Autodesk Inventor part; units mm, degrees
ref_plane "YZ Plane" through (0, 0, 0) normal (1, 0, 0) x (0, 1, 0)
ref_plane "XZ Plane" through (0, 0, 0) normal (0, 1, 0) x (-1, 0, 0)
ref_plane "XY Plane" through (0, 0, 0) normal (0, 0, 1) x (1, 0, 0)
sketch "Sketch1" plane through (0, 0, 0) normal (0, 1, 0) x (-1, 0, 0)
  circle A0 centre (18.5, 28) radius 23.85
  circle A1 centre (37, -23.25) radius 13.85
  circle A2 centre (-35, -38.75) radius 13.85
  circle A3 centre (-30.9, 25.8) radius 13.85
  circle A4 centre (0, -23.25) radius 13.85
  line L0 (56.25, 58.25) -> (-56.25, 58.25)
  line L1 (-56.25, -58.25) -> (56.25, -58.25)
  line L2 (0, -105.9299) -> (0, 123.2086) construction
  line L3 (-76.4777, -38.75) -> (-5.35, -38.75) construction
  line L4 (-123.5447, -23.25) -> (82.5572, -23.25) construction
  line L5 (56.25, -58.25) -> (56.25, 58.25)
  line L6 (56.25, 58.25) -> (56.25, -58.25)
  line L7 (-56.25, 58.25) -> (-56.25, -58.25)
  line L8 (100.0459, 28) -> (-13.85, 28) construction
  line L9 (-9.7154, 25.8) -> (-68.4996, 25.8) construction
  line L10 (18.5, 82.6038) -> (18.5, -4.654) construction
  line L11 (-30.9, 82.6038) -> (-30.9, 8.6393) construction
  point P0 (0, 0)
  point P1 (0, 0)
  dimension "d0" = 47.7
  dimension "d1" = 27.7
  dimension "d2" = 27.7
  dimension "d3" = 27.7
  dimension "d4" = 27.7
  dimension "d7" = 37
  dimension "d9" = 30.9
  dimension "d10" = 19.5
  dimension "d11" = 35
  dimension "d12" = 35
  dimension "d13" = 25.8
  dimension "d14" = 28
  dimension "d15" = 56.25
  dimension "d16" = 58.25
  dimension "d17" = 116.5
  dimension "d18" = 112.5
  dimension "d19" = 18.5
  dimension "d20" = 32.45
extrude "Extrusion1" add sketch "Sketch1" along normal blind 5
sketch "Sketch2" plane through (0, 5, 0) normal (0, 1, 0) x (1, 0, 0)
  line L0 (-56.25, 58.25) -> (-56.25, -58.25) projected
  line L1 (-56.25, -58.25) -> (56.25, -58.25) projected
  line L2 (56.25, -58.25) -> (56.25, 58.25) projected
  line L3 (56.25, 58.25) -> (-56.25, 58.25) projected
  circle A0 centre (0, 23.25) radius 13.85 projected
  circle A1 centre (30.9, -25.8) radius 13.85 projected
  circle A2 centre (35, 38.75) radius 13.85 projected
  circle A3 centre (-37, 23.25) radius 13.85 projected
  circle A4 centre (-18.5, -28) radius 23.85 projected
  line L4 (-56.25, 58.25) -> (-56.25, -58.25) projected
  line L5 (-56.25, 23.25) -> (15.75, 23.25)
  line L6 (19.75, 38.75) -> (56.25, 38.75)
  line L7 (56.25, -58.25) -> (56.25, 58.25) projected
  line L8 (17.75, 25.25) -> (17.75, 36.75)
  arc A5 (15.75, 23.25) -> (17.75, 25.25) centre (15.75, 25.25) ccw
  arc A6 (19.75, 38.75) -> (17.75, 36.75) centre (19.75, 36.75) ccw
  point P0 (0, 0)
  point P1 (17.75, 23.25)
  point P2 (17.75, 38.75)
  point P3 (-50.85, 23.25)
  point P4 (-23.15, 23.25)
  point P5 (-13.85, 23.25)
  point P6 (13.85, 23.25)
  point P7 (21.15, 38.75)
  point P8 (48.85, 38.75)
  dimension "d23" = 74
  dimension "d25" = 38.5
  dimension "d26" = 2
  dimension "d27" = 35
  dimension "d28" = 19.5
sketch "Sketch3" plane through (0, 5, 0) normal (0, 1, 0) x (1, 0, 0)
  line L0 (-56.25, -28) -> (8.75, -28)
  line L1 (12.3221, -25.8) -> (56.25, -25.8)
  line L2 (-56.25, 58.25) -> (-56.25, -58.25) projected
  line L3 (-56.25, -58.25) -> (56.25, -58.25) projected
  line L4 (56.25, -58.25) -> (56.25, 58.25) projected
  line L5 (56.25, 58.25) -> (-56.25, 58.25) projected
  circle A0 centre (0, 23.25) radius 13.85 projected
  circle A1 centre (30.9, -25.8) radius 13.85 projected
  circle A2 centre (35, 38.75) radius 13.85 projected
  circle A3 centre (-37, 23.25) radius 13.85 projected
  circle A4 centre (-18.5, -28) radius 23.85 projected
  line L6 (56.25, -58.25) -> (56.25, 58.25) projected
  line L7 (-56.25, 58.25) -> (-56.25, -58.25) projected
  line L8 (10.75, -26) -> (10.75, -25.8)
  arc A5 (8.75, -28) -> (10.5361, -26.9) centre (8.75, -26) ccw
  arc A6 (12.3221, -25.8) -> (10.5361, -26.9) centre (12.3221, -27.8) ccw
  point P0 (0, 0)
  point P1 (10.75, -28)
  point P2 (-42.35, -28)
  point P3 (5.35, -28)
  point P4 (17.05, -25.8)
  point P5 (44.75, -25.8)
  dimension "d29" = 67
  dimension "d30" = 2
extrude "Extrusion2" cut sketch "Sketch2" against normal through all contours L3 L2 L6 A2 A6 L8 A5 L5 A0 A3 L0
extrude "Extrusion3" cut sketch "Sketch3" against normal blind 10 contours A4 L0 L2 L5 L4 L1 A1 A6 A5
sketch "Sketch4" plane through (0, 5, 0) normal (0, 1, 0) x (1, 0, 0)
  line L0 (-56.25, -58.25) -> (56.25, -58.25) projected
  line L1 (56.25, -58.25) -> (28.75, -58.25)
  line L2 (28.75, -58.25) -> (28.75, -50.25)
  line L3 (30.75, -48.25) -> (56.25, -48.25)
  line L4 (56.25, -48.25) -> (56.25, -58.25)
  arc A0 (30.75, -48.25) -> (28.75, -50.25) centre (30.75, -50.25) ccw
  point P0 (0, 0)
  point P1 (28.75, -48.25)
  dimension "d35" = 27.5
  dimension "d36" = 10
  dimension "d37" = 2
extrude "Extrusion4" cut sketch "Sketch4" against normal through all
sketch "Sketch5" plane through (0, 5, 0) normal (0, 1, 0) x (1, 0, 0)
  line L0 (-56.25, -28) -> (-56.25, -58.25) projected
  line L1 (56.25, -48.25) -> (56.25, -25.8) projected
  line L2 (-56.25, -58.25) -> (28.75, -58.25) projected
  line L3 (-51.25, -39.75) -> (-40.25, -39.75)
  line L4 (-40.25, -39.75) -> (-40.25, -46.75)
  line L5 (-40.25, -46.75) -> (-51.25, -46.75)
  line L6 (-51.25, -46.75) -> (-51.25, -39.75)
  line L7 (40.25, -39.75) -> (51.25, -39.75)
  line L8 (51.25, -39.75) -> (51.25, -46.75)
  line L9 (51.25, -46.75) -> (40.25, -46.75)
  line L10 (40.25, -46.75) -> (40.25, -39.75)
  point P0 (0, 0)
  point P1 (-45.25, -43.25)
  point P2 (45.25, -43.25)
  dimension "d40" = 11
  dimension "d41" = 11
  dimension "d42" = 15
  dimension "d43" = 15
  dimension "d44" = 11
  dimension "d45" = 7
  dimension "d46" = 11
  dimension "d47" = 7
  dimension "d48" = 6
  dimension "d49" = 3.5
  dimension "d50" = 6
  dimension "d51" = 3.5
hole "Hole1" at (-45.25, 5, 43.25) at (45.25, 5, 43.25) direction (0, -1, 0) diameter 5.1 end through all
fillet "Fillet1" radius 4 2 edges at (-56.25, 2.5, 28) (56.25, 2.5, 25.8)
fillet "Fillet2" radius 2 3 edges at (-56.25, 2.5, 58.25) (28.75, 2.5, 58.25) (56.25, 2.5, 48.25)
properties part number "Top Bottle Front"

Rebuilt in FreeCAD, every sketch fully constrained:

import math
import FreeCAD as App
import Part
import Sketcher

V = App.Vector
Q = App.Units.Quantity


def edges_at(feature, points):
    """Names of the edges that pass closest to the given points."""
    edges = feature.Shape.Edges
    near = lambda p: min(range(len(edges)), key=lambda i: edges[i].distToShape(Part.Vertex(*p))[0])
    return sorted({f"Edge{near(p) + 1}" for p in points})


def add_polygon(sketch, points):
    """Adds a closed chain of lines whose ends are joined by coincident constraints."""
    first, n = sketch.GeometryCount, len(points)
    for a, b in zip(points, points[1:] + points[:1]):
        sketch.addGeometry(Part.LineSegment(App.Vector(*a, 0), App.Vector(*b, 0)), False)
    for i in range(n):
        sketch.addConstraint(Sketcher.Constraint("Coincident", first + i, 2, first + (i + 1) % n, 1))

doc = App.newDocument("Part")
body = doc.addObject("PartDesign::Body", "Body")

sketch1 = body.newObject("Sketcher::SketchObject", "Sketch")
sketch1.AttachmentSupport = (doc.getObject("XZ_Plane"), [""])
sketch1.MapMode = "FlatFace"
add_polygon(sketch1, [(-56, -58), (-56, 58), (56, 58), (56, -58)])
sketch1.addGeometry(Part.Circle(V(35, -39, 0), V(0, 0, 1), 14), False)
sketch1.addGeometry(Part.Circle(V(0, -23, 0), V(0, 0, 1), 14), False)
sketch1.addGeometry(Part.Circle(V(-37, -23, 0), V(0, 0, 1), 14), False)
sketch1.addGeometry(Part.Circle(V(31, 26, 0), V(0, 0, 1), 14), False)
sketch1.addGeometry(Part.Circle(V(-18, 28, 0), V(0, 0, 1), 24), False)
sketch1.addConstraint([
    Sketcher.Constraint("Vertical", 0),
    Sketcher.Constraint("Horizontal", 1),
    Sketcher.Constraint("Vertical", 2),
    Sketcher.Constraint("Horizontal", 3),
    Sketcher.Constraint("Equal", 4, 5),
    Sketcher.Constraint("Equal", 5, 6),
    Sketcher.Constraint("Equal", 6, 7),
    Sketcher.Constraint("Symmetric", 0, 2, 2, 2, -1, 1),
    Sketcher.Constraint("PointOnObject", 5, 3, -2),
    Sketcher.Constraint("Horizontal", 5, 3, 6, 3),
    Sketcher.Constraint("Diameter", 4, Q("27.7 mm")),
    Sketcher.Constraint("Diameter", 8, Q("47.7 mm")),
    Sketcher.Constraint("DistanceX", 1, 1, 1, 2, Q("112.5 mm")),
    Sketcher.Constraint("DistanceY", 0, 1, 0, 2, Q("116.5 mm")),
    Sketcher.Constraint("DistanceX", -1, 1, 4, 3, Q("35 mm")),
    Sketcher.Constraint("DistanceX", 6, 3, -1, 1, Q("37 mm")),
    Sketcher.Constraint("DistanceY", -1, 1, 8, 3, Q("28 mm")),
    Sketcher.Constraint("DistanceY", 2, 2, 5, 3, Q("35 mm")),
    Sketcher.Constraint("DistanceX", -1, 1, 7, 3, Q("30.9 mm")),
    Sketcher.Constraint("DistanceY", -1, 1, 7, 3, Q("25.8 mm")),
    Sketcher.Constraint("DistanceX", 8, 3, -1, 1, Q("18.5 mm")),
    Sketcher.Constraint("DistanceY", 2, 2, 4, 3, Q("19.5 mm")),
])
pad1 = body.newObject("PartDesign::Pad", "Pad")
pad1.Profile = sketch1
pad1.Length = 5
pad1.Reversed = True

sketch2 = body.newObject("Sketcher::SketchObject", "Sketch001")
sketch2.AttachmentSupport = (doc.getObject("XZ_Plane"), [""])
sketch2.MapMode = "FlatFace"
sketch2.AttachmentOffset = App.Placement(V(0, 0, -5), App.Rotation())
sketch2.addGeometry([
    Part.LineSegment(V(56.2, -58.2, 0), V(-56.2, -58.2, 0)),
    Part.LineSegment(V(-56.2, -58.2, 0), V(-56.2, -23.2, 0)),
    Part.LineSegment(V(-56.2, -23.2, 0), V(-50.9, -23.2, 0)),
    Part.ArcOfCircle(Part.Circle(V(-37, -23.2, 0), V(0, 0, 1), 13.8), math.radians(180), math.radians(360)),
    Part.LineSegment(V(-23.1, -23.2, 0), V(-13.8, -23.2, 0)),
    Part.ArcOfCircle(Part.Circle(V(0, -23.2, 0), V(0, 0, 1), 13.8), math.radians(180), math.radians(360)),
    Part.LineSegment(V(13.8, -23.2, 0), V(15.8, -23.2, 0)),
    Part.ArcOfCircle(Part.Circle(V(15.8, -25.2, 0), V(0, 0, 1), 2), math.radians(0), math.radians(90)),
    Part.LineSegment(V(17.8, -25.2, 0), V(17.8, -36.8, 0)),
    Part.ArcOfCircle(Part.Circle(V(19.8, -36.8, 0), V(0, 0, 1), 2), math.radians(180), math.radians(270)),
    Part.LineSegment(V(19.8, -38.8, 0), V(21.1, -38.8, 0)),
    Part.ArcOfCircle(Part.Circle(V(35, -38.8, 0), V(0, 0, 1), 13.8), math.radians(180), math.radians(360)),
    Part.LineSegment(V(48.9, -38.8, 0), V(56.2, -38.8, 0)),
    Part.LineSegment(V(56.2, -38.8, 0), V(56.2, -58.2, 0)),
], False)
sketch2.addConstraint([
    Sketcher.Constraint("Coincident", 0, 2, 1, 1),
    Sketcher.Constraint("Coincident", 1, 2, 2, 1),
    Sketcher.Constraint("Coincident", 2, 2, 3, 1),
    Sketcher.Constraint("Coincident", 3, 2, 4, 1),
    Sketcher.Constraint("Coincident", 4, 2, 5, 1),
    Sketcher.Constraint("Coincident", 5, 2, 6, 1),
    Sketcher.Constraint("Tangent", 6, 2, 7, 2),
    Sketcher.Constraint("Tangent", 7, 1, 8, 1),
    Sketcher.Constraint("Tangent", 8, 2, 9, 1),
    Sketcher.Constraint("Tangent", 9, 2, 10, 1),
    Sketcher.Constraint("Coincident", 10, 2, 11, 1),
    Sketcher.Constraint("Coincident", 11, 2, 12, 1),
    Sketcher.Constraint("Coincident", 12, 2, 13, 1),
    Sketcher.Constraint("Coincident", 13, 2, 0, 1),
    Sketcher.Constraint("Horizontal", 0),
    Sketcher.Constraint("Vertical", 1),
    Sketcher.Constraint("Horizontal", 2),
    Sketcher.Constraint("Horizontal", 4),
    Sketcher.Constraint("Horizontal", 6),
    Sketcher.Constraint("Vertical", 8),
    Sketcher.Constraint("Horizontal", 10),
    Sketcher.Constraint("Horizontal", 12),
    Sketcher.Constraint("Vertical", 13),
    Sketcher.Constraint("Equal", 3, 5),
    Sketcher.Constraint("Equal", 7, 9),
    Sketcher.Constraint("Equal", 5, 11),
    Sketcher.Constraint("Symmetric", 4, 2, 5, 2, -2),
    Sketcher.Constraint("Horizontal", 3, 3, 5, 3),
    Sketcher.Constraint("Horizontal", 5, 3, 1, 2),
    Sketcher.Constraint("Horizontal", 2, 2, 3, 2),
    Sketcher.Constraint("Horizontal", 11, 3, 9, 2),
    Sketcher.Constraint("Horizontal", 10, 2, 11, 2),
    Sketcher.Constraint("Radius", 7, Q("2 mm")),
    Sketcher.Constraint("DistanceY", 1, 1, 1, 2, Q("35 mm")),
    Sketcher.Constraint("DistanceY", 13, 2, 13, 1, Q("19.5 mm")),
    Sketcher.Constraint("DistanceX", -1, 1, 11, 3, Q("35 mm")),
    Sketcher.Constraint("Radius", 3, Q("13.85 mm")),
    Sketcher.Constraint("DistanceX", 0, 2, 0, 1, Q("112.5 mm")),
    Sketcher.Constraint("DistanceX", 2, 1, 2, 2, Q("5.4 mm")),
    Sketcher.Constraint("DistanceX", 4, 1, 4, 2, Q("9.3 mm")),
    Sketcher.Constraint("DistanceX", 6, 1, 6, 2, Q("1.9 mm")),
    Sketcher.Constraint("DistanceY", 3, 3, -1, 1, Q("23.25 mm")),
])
pocket1 = body.newObject("PartDesign::Pocket", "Pocket")
pocket1.Profile = sketch2
pocket1.Type = "ThroughAll"
pocket1.Reversed = True

sketch3 = body.newObject("Sketcher::SketchObject", "Sketch002")
sketch3.AttachmentSupport = (doc.getObject("XZ_Plane"), [""])
sketch3.MapMode = "FlatFace"
sketch3.AttachmentOffset = App.Placement(V(0, 0, -5), App.Rotation())
sketch3.addGeometry([
    Part.ArcOfCircle(Part.Circle(V(-18.5, 28, 0), V(0, 0, 1), 23.9), math.radians(180), math.radians(360)),
    Part.LineSegment(V(5.3, 28, 0), V(8.8, 28, 0)),
    Part.ArcOfCircle(Part.Circle(V(8.8, 26, 0), V(0, 0, 1), 2), math.radians(27), math.radians(90)),
    Part.ArcOfCircle(Part.Circle(V(12.3, 27.8, 0), V(0, 0, 1), 2), math.radians(-153), math.radians(-90)),
    Part.LineSegment(V(12.3, 25.8, 0), V(17.1, 25.8, 0)),
    Part.ArcOfCircle(Part.Circle(V(30.9, 25.8, 0), V(0, 0, 1), 13.8), math.radians(180), math.radians(360)),
    Part.LineSegment(V(44.8, 25.8, 0), V(56.2, 25.8, 0)),
    Part.LineSegment(V(56.2, 25.8, 0), V(56.2, -58.2, 0)),
    Part.LineSegment(V(56.2, -58.2, 0), V(-56.2, -58.2, 0)),
    Part.LineSegment(V(-56.2, -58.2, 0), V(-56.2, 28, 0)),
    Part.LineSegment(V(-56.2, 28, 0), V(-42.4, 28, 0)),
    Part.Circle(V(-37, -23.2, 0), V(0, 0, 1), 13.8),
    Part.Circle(V(0, -23.2, 0), V(0, 0, 1), 13.8),
    Part.Circle(V(35, -38.8, 0), V(0, 0, 1), 13.8),
], False)
sketch3.addConstraint([
    Sketcher.Constraint("Coincident", 0, 2, 1, 1),
    Sketcher.Constraint("Tangent", 1, 2, 2, 2),
    Sketcher.Constraint("Tangent", 2, 1, 3, 1),
    Sketcher.Constraint("Tangent", 3, 2, 4, 1),
    Sketcher.Constraint("Coincident", 4, 2, 5, 1),
    Sketcher.Constraint("Coincident", 5, 2, 6, 1),
    Sketcher.Constraint("Coincident", 6, 2, 7, 1),
    Sketcher.Constraint("Coincident", 7, 2, 8, 1),
    Sketcher.Constraint("Coincident", 8, 2, 9, 1),
    Sketcher.Constraint("Coincident", 9, 2, 10, 1),
    Sketcher.Constraint("Coincident", 10, 2, 0, 1),
    Sketcher.Constraint("Horizontal", 1),
    Sketcher.Constraint("Horizontal", 4),
    Sketcher.Constraint("Horizontal", 6),
    Sketcher.Constraint("Vertical", 7),
    Sketcher.Constraint("Horizontal", 8),
    Sketcher.Constraint("Vertical", 9),
    Sketcher.Constraint("Horizontal", 10),
    Sketcher.Constraint("Equal", 2, 3),
    Sketcher.Constraint("Equal", 5, 11),
    Sketcher.Constraint("Equal", 11, 12),
    Sketcher.Constraint("Equal", 12, 13),
    Sketcher.Constraint("PointOnObject", 12, 3, -2),
    Sketcher.Constraint("Horizontal", 11, 3, 12, 3),
    Sketcher.Constraint("Horizontal", 5, 3, 3, 2),
    Sketcher.Constraint("Horizontal", 4, 2, 5, 2),
    Sketcher.Constraint("Horizontal", 1, 2, 9, 2),
    Sketcher.Constraint("Radius", 2, Q("2 mm")),
    Sketcher.Constraint("DistanceY", 2, 3, 0, 3, Q("2 mm")),
    Sketcher.Constraint("Diameter", 11, Q("27.7 mm")),
    Sketcher.Constraint("Radius", 0, Q("23.85 mm")),
    Sketcher.Constraint("DistanceX", 1, 1, 1, 2, Q("3.4 mm")),
    Sketcher.Constraint("DistanceX", 6, 1, 6, 2, Q("11.5 mm")),
    Sketcher.Constraint("DistanceX", 8, 2, 8, 1, Q("112.5 mm")),
    Sketcher.Constraint("DistanceX", 10, 1, 10, 2, Q("13.9 mm")),
    Sketcher.Constraint("DistanceY", -1, 1, 0, 3, Q("28 mm")),
    Sketcher.Constraint("DistanceX", 11, 3, -1, 1, Q("37 mm")),
    Sketcher.Constraint("DistanceX", -1, 1, 13, 3, Q("35 mm")),
    Sketcher.Constraint("DistanceY", 7, 2, 12, 3, Q("35 mm")),
    Sketcher.Constraint("DistanceY", 7, 2, 7, 1, Q("84.05 mm")),
    Sketcher.Constraint("DistanceY", 9, 1, 9, 2, Q("86.25 mm")),
    Sketcher.Constraint("DistanceX", 0, 3, -1, 1, Q("18.5 mm")),
    Sketcher.Constraint("DistanceY", 13, 3, 12, 3, Q("15.5 mm")),
])
pocket2 = body.newObject("PartDesign::Pocket", "Pocket001")
pocket2.Profile = sketch3
pocket2.Length = 10
pocket2.Reversed = True

sketch4 = body.newObject("Sketcher::SketchObject", "Sketch003")
sketch4.AttachmentSupport = (doc.getObject("XZ_Plane"), [""])
sketch4.MapMode = "FlatFace"
sketch4.AttachmentOffset = App.Placement(V(0, 0, -5), App.Rotation())
sketch4.addGeometry([
    Part.LineSegment(V(28.8, 50.2, 0), V(28.8, 58.2, 0)),
    Part.LineSegment(V(28.8, 58.2, 0), V(56.2, 58.2, 0)),
    Part.LineSegment(V(56.2, 58.2, 0), V(56.2, 48.2, 0)),
    Part.LineSegment(V(56.2, 48.2, 0), V(30.8, 48.2, 0)),
    Part.ArcOfCircle(Part.Circle(V(30.8, 50.2, 0), V(0, 0, 1), 2), math.radians(180), math.radians(270)),
], False)
sketch4.addConstraint([
    Sketcher.Constraint("Coincident", 0, 2, 1, 1),
    Sketcher.Constraint("Coincident", 1, 2, 2, 1),
    Sketcher.Constraint("Coincident", 2, 2, 3, 1),
    Sketcher.Constraint("Tangent", 3, 2, 4, 2),
    Sketcher.Constraint("Tangent", 4, 1, 0, 1),
    Sketcher.Constraint("Vertical", 0),
    Sketcher.Constraint("Horizontal", 1),
    Sketcher.Constraint("Vertical", 2),
    Sketcher.Constraint("Horizontal", 3),
    Sketcher.Constraint("Radius", 4, Q("2 mm")),
    Sketcher.Constraint("DistanceY", 2, 2, 2, 1, Q("10 mm")),
    Sketcher.Constraint("DistanceX", 1, 1, 1, 2, Q("27.5 mm")),
    Sketcher.Constraint("DistanceX", -1, 1, 4, 3, Q("30.75 mm")),
    Sketcher.Constraint("DistanceY", -1, 1, 4, 3, Q("50.25 mm")),
])
pocket3 = body.newObject("PartDesign::Pocket", "Pocket002")
pocket3.Profile = sketch4
pocket3.Type = "ThroughAll"
pocket3.Reversed = True

sketch5 = body.newObject("Sketcher::SketchObject", "Sketch004")
sketch5.AttachmentSupport = (doc.getObject("XZ_Plane"), [""])
sketch5.MapMode = "FlatFace"
sketch5.AttachmentOffset = App.Placement(V(0, 0, -5), App.Rotation())
sketch5.addGeometry([
    Part.Circle(V(-45.2, 43.2, 0), V(0, 0, 1), 2.5),
    Part.Circle(V(45.2, 43.2, 0), V(0, 0, 1), 2.5),
], False)
sketch5.addConstraint([
    Sketcher.Constraint("Equal", 0, 1),
    Sketcher.Constraint("Symmetric", 0, 3, 1, 3, -2),
    Sketcher.Constraint("Diameter", 0, Q("5.1 mm")),
    Sketcher.Constraint("DistanceX", 0, 3, 1, 3, Q("90.5 mm")),
    Sketcher.Constraint("DistanceY", -1, 1, 0, 3, Q("43.25 mm")),
])
doc.recompute()
hole = body.newObject("PartDesign::Hole", "Hole")
hole.Profile = sketch5
hole.ThreadType = "None"
hole.Diameter = 5.1
hole.DepthType = "ThroughAll"
hole.Reversed = True
doc.recompute()

fillet = body.newObject("PartDesign::Fillet", "Fillet")
fillet.Base = (hole, edges_at(hole, [(-56.25, 2.5, 28), (56.25, 2.5, 25.8)]))
fillet.Radius = 4
doc.recompute()

fillet2 = body.newObject("PartDesign::Fillet", "Fillet001")
fillet2.Base = (fillet, edges_at(fillet, [(-56.25, 2.5, 58.25), (28.75, 2.5, 58.25), (56.25, 2.5, 48.25)]))
fillet2.Radius = 2

doc.recompute()
